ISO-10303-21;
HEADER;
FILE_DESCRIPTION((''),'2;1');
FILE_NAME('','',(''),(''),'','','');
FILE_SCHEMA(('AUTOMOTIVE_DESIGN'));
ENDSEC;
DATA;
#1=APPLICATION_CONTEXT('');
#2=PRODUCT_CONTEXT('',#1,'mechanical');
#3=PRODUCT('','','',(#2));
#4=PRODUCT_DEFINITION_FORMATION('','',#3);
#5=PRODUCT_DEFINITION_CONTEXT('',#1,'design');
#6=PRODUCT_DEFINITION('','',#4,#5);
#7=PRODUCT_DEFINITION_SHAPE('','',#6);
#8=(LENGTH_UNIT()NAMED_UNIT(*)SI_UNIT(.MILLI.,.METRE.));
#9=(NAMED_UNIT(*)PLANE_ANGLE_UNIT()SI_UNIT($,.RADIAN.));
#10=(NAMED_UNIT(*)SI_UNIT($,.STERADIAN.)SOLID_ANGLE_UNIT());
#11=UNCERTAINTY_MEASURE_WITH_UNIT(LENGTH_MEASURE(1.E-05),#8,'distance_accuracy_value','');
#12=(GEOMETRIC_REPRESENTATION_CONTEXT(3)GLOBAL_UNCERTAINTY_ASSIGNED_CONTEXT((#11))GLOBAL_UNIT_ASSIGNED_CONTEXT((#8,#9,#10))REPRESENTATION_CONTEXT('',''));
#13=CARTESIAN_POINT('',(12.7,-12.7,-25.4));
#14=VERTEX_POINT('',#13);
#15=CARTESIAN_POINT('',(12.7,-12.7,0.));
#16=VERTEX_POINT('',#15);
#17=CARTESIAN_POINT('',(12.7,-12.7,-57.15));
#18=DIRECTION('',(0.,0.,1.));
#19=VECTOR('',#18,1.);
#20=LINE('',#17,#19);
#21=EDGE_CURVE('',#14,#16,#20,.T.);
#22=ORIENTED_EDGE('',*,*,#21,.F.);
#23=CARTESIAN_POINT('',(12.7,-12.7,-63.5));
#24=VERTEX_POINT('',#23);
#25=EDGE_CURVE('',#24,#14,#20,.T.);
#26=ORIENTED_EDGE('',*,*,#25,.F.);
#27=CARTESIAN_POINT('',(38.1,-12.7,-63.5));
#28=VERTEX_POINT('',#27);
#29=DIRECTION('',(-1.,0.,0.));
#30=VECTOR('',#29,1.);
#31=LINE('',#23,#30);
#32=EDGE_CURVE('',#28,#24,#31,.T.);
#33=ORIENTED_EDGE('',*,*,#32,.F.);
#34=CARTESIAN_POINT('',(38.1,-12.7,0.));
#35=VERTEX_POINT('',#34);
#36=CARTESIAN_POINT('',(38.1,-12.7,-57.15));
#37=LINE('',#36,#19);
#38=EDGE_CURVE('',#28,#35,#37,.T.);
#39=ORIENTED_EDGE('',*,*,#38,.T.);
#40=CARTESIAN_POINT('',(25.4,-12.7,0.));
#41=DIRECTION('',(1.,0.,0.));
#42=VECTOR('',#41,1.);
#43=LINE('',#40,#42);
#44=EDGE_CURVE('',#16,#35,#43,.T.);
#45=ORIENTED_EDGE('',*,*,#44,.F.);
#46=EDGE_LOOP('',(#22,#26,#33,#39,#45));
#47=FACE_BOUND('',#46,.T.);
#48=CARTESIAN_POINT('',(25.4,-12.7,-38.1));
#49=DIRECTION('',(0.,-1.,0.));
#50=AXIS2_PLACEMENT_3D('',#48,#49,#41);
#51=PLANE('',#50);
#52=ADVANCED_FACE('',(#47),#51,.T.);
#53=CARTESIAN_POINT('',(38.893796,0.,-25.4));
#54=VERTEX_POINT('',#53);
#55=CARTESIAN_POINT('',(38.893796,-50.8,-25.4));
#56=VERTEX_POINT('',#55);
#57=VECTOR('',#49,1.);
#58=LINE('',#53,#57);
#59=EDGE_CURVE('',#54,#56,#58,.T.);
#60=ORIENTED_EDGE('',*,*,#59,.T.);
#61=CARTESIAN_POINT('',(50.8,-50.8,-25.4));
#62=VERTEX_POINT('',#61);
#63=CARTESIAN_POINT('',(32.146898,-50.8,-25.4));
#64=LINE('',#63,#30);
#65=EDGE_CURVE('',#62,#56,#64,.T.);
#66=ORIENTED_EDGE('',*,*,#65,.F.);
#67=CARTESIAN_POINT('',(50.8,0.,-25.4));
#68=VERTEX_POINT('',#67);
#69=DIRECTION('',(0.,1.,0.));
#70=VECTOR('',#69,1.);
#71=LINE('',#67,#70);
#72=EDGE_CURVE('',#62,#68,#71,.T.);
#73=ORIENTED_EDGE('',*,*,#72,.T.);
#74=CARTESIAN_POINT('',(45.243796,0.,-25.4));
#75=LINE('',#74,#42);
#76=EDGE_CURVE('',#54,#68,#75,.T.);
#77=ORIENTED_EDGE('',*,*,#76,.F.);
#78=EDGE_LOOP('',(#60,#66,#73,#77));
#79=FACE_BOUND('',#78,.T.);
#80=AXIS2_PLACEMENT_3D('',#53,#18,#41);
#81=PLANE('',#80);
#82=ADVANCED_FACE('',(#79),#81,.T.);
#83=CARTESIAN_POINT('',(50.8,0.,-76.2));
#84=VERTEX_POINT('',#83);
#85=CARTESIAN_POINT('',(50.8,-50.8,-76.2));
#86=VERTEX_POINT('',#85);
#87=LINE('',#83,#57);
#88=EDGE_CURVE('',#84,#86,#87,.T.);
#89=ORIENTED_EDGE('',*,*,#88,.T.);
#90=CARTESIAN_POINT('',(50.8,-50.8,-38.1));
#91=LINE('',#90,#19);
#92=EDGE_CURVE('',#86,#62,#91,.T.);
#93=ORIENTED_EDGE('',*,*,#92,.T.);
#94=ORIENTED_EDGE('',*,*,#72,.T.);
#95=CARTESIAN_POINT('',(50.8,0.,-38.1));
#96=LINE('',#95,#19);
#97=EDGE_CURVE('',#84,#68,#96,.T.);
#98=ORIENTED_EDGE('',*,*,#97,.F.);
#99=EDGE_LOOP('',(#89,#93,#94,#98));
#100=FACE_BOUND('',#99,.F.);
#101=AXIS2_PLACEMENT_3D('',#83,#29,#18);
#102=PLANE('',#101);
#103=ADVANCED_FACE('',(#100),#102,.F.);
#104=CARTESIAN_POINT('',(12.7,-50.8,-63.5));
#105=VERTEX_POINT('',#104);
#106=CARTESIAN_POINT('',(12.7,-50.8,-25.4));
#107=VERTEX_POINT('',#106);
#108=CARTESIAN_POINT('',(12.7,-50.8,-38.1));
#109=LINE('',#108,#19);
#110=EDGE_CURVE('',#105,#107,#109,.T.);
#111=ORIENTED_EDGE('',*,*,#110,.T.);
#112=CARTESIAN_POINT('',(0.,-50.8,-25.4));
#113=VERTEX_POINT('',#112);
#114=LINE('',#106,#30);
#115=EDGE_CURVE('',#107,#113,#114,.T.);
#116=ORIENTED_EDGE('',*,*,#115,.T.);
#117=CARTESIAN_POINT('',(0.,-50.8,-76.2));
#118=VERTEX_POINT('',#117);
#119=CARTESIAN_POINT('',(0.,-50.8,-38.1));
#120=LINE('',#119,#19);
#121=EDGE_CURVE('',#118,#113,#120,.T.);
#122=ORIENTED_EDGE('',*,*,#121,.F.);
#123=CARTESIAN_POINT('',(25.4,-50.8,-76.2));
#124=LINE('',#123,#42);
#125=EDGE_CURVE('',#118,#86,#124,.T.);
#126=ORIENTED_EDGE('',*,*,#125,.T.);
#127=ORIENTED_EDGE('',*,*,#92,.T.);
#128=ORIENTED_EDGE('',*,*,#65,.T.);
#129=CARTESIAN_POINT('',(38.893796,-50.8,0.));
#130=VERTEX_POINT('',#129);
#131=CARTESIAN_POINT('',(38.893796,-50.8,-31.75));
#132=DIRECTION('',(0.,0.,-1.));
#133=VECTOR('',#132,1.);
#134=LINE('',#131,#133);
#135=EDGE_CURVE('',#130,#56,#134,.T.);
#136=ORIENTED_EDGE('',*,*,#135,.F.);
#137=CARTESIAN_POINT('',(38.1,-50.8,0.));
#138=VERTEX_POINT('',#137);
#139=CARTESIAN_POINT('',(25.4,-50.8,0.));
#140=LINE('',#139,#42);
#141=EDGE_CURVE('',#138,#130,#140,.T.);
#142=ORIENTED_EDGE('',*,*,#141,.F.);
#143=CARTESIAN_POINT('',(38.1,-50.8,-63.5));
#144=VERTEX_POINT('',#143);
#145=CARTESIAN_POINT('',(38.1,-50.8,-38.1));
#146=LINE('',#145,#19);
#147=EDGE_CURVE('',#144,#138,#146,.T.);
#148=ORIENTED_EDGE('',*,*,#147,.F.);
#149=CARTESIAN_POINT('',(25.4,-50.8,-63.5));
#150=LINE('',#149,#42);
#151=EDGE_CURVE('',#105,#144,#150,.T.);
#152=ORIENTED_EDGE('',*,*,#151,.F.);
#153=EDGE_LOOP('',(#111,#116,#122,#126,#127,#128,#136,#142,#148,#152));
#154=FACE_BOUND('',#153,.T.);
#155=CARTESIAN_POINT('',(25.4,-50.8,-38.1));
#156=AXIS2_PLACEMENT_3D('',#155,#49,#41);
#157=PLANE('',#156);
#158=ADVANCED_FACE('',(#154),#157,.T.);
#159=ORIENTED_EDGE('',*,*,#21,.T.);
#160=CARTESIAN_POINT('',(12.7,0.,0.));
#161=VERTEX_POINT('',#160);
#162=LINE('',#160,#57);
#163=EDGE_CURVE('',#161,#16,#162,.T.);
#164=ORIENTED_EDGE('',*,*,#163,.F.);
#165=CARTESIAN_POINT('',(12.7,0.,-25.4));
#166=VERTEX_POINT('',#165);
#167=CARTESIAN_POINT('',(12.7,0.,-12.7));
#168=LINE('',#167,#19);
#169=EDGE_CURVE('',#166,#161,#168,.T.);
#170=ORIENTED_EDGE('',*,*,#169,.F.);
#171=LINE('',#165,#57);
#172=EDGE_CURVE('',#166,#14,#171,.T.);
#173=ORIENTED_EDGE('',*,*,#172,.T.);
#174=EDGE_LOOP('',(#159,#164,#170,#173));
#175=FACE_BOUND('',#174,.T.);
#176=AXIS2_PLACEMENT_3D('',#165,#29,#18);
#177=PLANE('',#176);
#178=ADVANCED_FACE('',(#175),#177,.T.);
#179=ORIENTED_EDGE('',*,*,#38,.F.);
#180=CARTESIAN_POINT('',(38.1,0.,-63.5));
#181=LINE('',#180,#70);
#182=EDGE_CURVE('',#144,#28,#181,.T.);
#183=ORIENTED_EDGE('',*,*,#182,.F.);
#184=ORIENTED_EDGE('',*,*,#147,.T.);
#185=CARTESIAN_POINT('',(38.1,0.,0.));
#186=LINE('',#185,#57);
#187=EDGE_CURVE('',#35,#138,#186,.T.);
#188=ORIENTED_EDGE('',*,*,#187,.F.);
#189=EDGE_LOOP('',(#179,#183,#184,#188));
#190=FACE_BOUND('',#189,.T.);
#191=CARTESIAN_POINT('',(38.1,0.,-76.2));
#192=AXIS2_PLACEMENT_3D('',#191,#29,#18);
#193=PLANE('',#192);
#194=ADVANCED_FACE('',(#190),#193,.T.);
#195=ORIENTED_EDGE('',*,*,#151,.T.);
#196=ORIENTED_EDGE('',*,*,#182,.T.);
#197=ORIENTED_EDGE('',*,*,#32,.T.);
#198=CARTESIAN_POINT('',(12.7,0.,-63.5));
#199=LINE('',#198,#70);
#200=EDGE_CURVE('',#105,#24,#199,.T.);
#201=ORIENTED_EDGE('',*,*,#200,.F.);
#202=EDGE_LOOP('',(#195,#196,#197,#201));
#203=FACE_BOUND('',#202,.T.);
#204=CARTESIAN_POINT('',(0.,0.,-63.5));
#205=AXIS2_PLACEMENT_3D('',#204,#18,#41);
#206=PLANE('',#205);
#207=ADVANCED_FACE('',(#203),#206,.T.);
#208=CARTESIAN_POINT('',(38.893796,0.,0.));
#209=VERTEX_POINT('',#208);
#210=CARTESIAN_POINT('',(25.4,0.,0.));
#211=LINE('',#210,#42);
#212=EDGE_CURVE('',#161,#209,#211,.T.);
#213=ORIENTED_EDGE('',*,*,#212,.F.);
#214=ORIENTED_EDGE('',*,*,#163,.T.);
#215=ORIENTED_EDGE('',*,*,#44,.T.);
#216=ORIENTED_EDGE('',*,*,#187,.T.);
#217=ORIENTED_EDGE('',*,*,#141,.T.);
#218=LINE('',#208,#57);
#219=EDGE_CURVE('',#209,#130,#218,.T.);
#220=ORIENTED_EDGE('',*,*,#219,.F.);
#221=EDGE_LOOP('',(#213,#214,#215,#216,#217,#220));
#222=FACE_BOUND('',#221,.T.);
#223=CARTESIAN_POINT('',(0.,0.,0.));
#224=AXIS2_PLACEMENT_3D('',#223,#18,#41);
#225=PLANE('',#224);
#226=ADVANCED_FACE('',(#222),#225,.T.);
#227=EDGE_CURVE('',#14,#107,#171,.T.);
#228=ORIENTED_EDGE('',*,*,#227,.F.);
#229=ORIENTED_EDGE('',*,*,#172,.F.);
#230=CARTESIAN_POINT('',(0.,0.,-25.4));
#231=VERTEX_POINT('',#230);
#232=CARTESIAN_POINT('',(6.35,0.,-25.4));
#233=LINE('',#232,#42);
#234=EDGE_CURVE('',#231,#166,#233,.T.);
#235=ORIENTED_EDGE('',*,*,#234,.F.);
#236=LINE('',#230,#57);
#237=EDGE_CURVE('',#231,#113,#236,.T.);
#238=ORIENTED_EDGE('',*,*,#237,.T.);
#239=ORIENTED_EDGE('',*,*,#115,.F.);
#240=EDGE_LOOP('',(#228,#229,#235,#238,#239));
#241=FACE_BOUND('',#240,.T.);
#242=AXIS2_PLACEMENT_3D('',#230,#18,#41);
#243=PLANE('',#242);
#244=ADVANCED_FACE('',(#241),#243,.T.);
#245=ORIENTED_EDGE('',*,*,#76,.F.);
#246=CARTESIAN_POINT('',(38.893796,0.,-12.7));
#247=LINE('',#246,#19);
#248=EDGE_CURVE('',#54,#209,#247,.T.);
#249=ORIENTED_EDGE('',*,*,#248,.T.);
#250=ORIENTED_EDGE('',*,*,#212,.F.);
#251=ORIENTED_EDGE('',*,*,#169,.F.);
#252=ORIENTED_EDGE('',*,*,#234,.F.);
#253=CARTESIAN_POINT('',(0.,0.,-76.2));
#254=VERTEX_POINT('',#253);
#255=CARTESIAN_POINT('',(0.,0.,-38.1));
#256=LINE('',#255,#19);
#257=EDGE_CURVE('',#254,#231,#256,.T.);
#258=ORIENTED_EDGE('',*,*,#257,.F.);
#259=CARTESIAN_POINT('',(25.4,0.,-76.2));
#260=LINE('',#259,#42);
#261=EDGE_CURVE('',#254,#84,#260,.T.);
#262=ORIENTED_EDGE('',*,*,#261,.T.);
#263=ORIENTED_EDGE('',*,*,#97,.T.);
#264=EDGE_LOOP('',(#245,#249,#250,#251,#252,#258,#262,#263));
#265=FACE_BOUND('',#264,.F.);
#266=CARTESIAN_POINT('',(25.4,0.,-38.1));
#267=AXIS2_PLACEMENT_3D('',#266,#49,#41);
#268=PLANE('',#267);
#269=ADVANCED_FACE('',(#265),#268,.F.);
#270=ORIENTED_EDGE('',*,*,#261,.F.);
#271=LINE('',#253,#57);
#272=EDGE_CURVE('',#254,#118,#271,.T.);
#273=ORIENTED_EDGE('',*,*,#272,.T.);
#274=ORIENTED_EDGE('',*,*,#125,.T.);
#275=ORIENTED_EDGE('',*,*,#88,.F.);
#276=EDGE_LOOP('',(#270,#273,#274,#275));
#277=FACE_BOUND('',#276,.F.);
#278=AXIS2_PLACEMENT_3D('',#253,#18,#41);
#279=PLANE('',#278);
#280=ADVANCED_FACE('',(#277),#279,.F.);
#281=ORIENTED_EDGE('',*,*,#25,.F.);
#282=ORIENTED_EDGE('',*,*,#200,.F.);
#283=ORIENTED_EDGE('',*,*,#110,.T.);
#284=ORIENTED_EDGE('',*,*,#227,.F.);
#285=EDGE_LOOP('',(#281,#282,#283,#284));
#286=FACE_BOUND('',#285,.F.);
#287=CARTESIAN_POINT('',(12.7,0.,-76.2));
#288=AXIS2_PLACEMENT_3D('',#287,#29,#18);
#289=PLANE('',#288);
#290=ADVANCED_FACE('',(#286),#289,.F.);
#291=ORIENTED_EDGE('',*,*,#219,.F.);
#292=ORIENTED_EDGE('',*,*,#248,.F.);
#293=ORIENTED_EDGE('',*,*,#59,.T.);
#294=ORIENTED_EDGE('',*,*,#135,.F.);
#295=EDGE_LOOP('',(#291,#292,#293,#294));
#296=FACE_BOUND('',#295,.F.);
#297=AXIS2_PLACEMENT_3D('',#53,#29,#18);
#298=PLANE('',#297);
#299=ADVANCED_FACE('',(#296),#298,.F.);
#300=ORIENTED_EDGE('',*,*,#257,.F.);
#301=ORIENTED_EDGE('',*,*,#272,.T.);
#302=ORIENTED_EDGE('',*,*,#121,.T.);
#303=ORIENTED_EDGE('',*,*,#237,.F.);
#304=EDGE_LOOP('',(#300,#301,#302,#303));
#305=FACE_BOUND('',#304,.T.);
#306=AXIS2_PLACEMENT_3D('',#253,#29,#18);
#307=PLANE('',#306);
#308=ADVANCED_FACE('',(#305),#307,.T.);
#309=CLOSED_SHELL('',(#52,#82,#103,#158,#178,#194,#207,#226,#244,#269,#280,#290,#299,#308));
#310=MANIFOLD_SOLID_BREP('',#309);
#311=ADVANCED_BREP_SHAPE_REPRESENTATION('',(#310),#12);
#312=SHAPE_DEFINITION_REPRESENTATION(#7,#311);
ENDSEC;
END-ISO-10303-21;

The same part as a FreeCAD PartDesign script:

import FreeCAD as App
import Part
import Sketcher
Q = App.Units.Quantity


def faces_at(feature, points):
    """Names of the faces that lie closest to the given points."""
    faces = feature.Shape.Faces
    near = lambda p: min(range(len(faces)), key=lambda i: faces[i].distToShape(Part.Vertex(*p))[0])
    return sorted({f"Face{near(p) + 1}" for p in points})


def add_polygon(sketch, points):
    """Adds a closed chain of lines whose ends are joined by coincident constraints."""
    first, n = sketch.GeometryCount, len(points)
    for a, b in zip(points, points[1:] + points[:1]):
        sketch.addGeometry(Part.LineSegment(App.Vector(*a, 0), App.Vector(*b, 0)), False)
    for i in range(n):
        sketch.addConstraint(Sketcher.Constraint("Coincident", first + i, 2, first + (i + 1) % n, 1))

doc = App.newDocument("Part")
body = doc.addObject("PartDesign::Body", "Body")

# Sketch on XZ plane
sketch1 = body.newObject("Sketcher::SketchObject", "Sketch")
sketch1.AttachmentSupport = (doc.getObject("XZ_Plane"), [""])
sketch1.MapMode = "FlatFace"
add_polygon(sketch1, [(0, 0), (0, -76), (51, -76), (51, 0)])  # lines 0-3
sketch1.addConstraint(Sketcher.Constraint("Vertical", 0))
sketch1.addConstraint(Sketcher.Constraint("Horizontal", 1))
sketch1.addConstraint(Sketcher.Constraint("Vertical", 2))
sketch1.addConstraint(Sketcher.Constraint("Horizontal", 3))
sketch1.addConstraint(Sketcher.Constraint("Coincident", 3, 2, -1, 1))
sketch1.addConstraint(Sketcher.Constraint("DistanceX", 1, 1, 1, 2, Q("2 in")))
sketch1.addConstraint(Sketcher.Constraint("DistanceY", 0, 2, 0, 1, Q("3 in")))
pad1 = body.newObject("PartDesign::Pad", "Pad")
pad1.Profile = sketch1
pad1.Length = Q("2 in")
doc.recompute()

thickness = body.newObject("PartDesign::Thickness", "Thickness")
thickness.Base = (pad1, faces_at(pad1, [(25.4, -50.8, -38.1), (25.4, -25.4, 0)]))
thickness.Value = Q("0.5 in")
thickness.Reversed = True
thickness.Join = "Arc"

# Sketch on XZ plane
sketch2 = body.newObject("Sketcher::SketchObject", "Sketch001")
sketch2.AttachmentSupport = (doc.getObject("XZ_Plane"), [""])
sketch2.MapMode = "FlatFace"
add_polygon(sketch2, [(0, 0), (0, -25), (13, -25), (13, 0)])  # lines 0-3
add_polygon(sketch2, [(39, 0), (39, -25), (52, -25), (52, 0)])  # lines 4-7
sketch2.addConstraint(Sketcher.Constraint("Vertical", 0))
sketch2.addConstraint(Sketcher.Constraint("Horizontal", 1))
sketch2.addConstraint(Sketcher.Constraint("Vertical", 2))
sketch2.addConstraint(Sketcher.Constraint("Horizontal", 3))
sketch2.addConstraint(Sketcher.Constraint("Vertical", 4))
sketch2.addConstraint(Sketcher.Constraint("Horizontal", 5))
sketch2.addConstraint(Sketcher.Constraint("Vertical", 6))
sketch2.addConstraint(Sketcher.Constraint("Horizontal", 7))
sketch2.addConstraint(Sketcher.Constraint("Coincident", 3, 2, -1, 1))
sketch2.addConstraint(Sketcher.Constraint("PointOnObject", 6, 2, -1))
sketch2.addConstraint(Sketcher.Constraint("Horizontal", 1, 2, 4, 2))
sketch2.addConstraint(Sketcher.Constraint("Equal", 3, 5))
sketch2.addConstraint(Sketcher.Constraint("DistanceY", 0, 2, 0, 1, Q("1 in")))
sketch2.addConstraint(Sketcher.Constraint("DistanceX", 1, 1, 1, 2, Q("0.5 in")))
sketch2.addConstraint(Sketcher.Constraint("DistanceX", -1, 1, 4, 2, 38.893796))
pocket1 = body.newObject("PartDesign::Pocket", "Pocket")
pocket1.Profile = sketch2
pocket1.Length = 79.708762
pocket1.Reversed = True

doc.recompute()
